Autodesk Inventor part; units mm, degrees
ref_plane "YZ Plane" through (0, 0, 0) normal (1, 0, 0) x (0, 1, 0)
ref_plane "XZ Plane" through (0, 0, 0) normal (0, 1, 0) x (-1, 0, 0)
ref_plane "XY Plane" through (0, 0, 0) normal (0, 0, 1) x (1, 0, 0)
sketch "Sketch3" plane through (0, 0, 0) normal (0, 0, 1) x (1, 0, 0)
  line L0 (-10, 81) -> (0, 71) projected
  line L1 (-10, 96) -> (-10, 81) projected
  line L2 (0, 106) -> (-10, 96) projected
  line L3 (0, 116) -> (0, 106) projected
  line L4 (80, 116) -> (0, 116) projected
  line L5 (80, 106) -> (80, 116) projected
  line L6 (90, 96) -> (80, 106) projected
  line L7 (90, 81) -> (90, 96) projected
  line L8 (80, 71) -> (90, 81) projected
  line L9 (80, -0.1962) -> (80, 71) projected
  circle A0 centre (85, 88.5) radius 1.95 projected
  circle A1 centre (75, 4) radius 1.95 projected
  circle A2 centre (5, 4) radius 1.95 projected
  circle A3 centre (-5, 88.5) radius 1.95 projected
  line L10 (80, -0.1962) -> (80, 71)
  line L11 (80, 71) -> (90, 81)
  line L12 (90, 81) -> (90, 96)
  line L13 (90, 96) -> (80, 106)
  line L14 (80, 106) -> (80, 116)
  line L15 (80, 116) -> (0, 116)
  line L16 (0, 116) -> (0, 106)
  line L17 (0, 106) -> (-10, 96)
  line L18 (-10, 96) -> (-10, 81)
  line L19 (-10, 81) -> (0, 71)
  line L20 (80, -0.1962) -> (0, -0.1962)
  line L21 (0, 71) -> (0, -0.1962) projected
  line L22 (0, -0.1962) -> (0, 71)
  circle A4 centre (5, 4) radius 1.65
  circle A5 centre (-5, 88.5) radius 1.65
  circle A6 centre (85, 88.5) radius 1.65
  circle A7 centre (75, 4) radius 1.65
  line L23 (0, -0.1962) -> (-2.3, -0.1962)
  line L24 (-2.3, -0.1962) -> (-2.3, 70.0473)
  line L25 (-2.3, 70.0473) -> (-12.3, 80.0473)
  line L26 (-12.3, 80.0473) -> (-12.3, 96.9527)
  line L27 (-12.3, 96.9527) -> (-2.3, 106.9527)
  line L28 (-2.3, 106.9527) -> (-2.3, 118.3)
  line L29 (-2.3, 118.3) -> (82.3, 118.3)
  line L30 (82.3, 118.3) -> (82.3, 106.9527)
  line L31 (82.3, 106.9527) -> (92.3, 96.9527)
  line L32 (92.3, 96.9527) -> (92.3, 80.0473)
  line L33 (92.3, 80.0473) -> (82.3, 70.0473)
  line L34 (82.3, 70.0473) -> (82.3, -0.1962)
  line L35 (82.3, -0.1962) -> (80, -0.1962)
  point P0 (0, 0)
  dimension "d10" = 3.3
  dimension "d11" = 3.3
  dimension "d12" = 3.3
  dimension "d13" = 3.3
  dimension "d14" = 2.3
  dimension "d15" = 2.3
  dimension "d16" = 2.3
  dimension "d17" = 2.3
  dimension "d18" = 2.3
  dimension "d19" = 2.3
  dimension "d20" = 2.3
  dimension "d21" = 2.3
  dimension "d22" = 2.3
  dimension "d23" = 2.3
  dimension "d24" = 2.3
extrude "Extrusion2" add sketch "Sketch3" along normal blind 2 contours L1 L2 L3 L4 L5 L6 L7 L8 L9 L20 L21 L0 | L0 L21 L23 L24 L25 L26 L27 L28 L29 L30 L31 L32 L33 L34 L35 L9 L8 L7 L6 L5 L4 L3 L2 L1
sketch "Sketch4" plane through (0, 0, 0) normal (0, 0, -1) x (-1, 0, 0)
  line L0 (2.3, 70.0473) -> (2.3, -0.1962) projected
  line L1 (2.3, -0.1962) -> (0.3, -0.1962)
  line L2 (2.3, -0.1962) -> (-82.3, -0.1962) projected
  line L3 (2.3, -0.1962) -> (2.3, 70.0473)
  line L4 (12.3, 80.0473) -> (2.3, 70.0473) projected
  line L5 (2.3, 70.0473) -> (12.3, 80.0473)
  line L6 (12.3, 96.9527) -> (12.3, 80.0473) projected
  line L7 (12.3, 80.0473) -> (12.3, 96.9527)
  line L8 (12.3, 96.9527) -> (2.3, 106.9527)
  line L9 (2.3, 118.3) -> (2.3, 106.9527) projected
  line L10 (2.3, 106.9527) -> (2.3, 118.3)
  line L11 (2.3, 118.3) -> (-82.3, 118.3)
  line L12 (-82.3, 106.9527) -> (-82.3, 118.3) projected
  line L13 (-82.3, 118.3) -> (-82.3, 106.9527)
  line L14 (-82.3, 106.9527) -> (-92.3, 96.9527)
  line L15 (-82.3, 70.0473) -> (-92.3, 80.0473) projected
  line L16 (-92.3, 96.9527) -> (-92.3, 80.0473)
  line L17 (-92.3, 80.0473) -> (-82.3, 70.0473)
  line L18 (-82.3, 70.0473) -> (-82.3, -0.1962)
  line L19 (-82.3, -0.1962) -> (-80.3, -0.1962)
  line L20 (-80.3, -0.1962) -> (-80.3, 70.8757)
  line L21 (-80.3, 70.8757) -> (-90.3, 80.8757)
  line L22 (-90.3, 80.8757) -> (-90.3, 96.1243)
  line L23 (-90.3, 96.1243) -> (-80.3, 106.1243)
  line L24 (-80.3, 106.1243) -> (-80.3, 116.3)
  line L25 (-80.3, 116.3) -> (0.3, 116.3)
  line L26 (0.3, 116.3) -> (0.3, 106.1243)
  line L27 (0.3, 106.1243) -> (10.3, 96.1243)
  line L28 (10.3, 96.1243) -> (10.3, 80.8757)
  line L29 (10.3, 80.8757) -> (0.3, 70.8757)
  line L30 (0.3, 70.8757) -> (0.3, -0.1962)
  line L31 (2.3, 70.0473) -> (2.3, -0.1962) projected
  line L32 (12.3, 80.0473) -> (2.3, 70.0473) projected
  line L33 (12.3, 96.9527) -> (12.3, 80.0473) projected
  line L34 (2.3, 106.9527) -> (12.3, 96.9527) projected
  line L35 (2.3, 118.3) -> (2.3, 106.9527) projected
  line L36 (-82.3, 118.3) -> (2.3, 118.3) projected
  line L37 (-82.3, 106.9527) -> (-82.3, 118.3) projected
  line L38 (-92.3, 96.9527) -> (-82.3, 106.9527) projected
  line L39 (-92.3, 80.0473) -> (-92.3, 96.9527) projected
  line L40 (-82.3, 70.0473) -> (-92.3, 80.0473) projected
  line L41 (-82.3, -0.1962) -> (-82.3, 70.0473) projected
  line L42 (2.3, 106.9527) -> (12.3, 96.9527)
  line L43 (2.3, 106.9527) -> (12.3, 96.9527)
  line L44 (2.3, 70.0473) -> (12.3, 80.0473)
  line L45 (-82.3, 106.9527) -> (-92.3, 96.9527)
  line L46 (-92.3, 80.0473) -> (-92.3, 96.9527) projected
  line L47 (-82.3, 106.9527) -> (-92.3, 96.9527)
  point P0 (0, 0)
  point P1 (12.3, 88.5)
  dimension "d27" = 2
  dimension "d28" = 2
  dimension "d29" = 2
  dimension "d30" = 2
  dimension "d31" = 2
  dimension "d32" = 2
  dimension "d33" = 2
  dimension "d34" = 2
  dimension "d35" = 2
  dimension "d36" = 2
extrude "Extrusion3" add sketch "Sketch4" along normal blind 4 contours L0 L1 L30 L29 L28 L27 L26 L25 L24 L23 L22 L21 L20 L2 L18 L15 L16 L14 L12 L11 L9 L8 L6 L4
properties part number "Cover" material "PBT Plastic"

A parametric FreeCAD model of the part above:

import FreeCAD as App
import Part
import Sketcher
from FreeCAD import Vector
Q = App.Units.Quantity


def add_polygon(sketch, points):
    """Adds a closed chain of lines whose ends are joined by coincident constraints."""
    first, n = sketch.GeometryCount, len(points)
    for a, b in zip(points, points[1:] + points[:1]):
        sketch.addGeometry(Part.LineSegment(App.Vector(*a, 0), App.Vector(*b, 0)), False)
    for i in range(n):
        sketch.addConstraint(Sketcher.Constraint("Coincident", first + i, 2, first + (i + 1) % n, 1))

doc = App.newDocument("Part")
body = doc.addObject("PartDesign::Body", "Body")

# Sketch on XY plane
sketch1 = body.newObject("Sketcher::SketchObject", "Sketch")
sketch1.AttachmentSupport = (doc.getObject("XY_Plane"), [""])
sketch1.MapMode = "FlatFace"
add_polygon(sketch1, [(82.3, -0.2), (82.3, 70), (92.3, 80), (92.3, 97), (82.3, 107), (82.3, 118.3), (-2.3, 118.3), (-2.3, 107), (-12.3, 97), (-12.3, 80), (-2.3, 70), (-2.3, -0.2)])  # lines 0-11
sketch1.addGeometry(Part.Circle(Vector(5, 4, 0), Vector(0, 0, 1), 1.9), False)  # 12
sketch1.addGeometry(Part.Circle(Vector(75, 4, 0), Vector(0, 0, 1), 1.9), False)  # 13
sketch1.addGeometry(Part.Circle(Vector(-5, 88.5, 0), Vector(0, 0, 1), 1.9), False)  # 14
sketch1.addGeometry(Part.Circle(Vector(85, 88.5, 0), Vector(0, 0, 1), 1.9), False)  # 15
sketch1.addConstraint(Sketcher.Constraint("Vertical", 0))
sketch1.addConstraint(Sketcher.Constraint("Vertical", 2))
sketch1.addConstraint(Sketcher.Constraint("Vertical", 4))
sketch1.addConstraint(Sketcher.Constraint("Horizontal", 5))
sketch1.addConstraint(Sketcher.Constraint("Vertical", 6))
sketch1.addConstraint(Sketcher.Constraint("Vertical", 8))
sketch1.addConstraint(Sketcher.Constraint("Vertical", 10))
sketch1.addConstraint(Sketcher.Constraint("Horizontal", 11))
sketch1.addConstraint(Sketcher.Constraint("Equal", 12, 13))
sketch1.addConstraint(Sketcher.Constraint("Equal", 13, 14))
sketch1.addConstraint(Sketcher.Constraint("Equal", 14, 15))
sketch1.addConstraint(Sketcher.Constraint("Perpendicular", 1, 3))
sketch1.addConstraint(Sketcher.Constraint("Perpendicular", 3, 7))
sketch1.addConstraint(Sketcher.Constraint("Perpendicular", 7, 9))
sketch1.addConstraint(Sketcher.Constraint("Horizontal", 12, 3, 13, 3))
sketch1.addConstraint(Sketcher.Constraint("Horizontal", 14, 3, 15, 3))
sketch1.addConstraint(Sketcher.Constraint("Horizontal", 3, 2, 6, 2))
sketch1.addConstraint(Sketcher.Constraint("Horizontal", 2, 2, 7, 2))
sketch1.addConstraint(Sketcher.Constraint("Horizontal", 1, 2, 8, 2))
sketch1.addConstraint(Sketcher.Constraint("Horizontal", 0, 2, 9, 2))
sketch1.addConstraint(Sketcher.Constraint("Vertical", 0, 2, 3, 2))
sketch1.addConstraint(Sketcher.Constraint("Vertical", 6, 2, 9, 2))
sketch1.addConstraint(Sketcher.Constraint("Diameter", 12, Q("3.9 mm")))
sketch1.addConstraint(Sketcher.Constraint("DistanceX", 5, 2, -1, 1, Q("2.3 mm")))
sketch1.addConstraint(Sketcher.Constraint("DistanceX", 5, 2, 5, 1, Q("84.6 mm")))
sketch1.addConstraint(Sketcher.Constraint("DistanceX", -1, 1, 12, 3, Q("5 mm")))
sketch1.addConstraint(Sketcher.Constraint("DistanceY", -1, 1, 12, 3, Q("4 mm")))
sketch1.addConstraint(Sketcher.Constraint("DistanceX", -1, 1, 13, 3, Q("75 mm")))
sketch1.addConstraint(Sketcher.Constraint("DistanceX", 14, 3, -1, 1, Q("5 mm")))
sketch1.addConstraint(Sketcher.Constraint("DistanceX", -1, 1, 15, 3, Q("85 mm")))
sketch1.addConstraint(Sketcher.Constraint("DistanceX", 0, 2, 1, 2, Q("10 mm")))
sketch1.addConstraint(Sketcher.Constraint("DistanceY", -1, 1, 14, 3, Q("88.5 mm")))
sketch1.addConstraint(Sketcher.Constraint("DistanceY", -1, 1, 4, 2, Q("118.3 mm")))
sketch1.addConstraint(Sketcher.Constraint("DistanceY", 0, 1, 0, 2, Q("70.2435 mm")))
sketch1.addConstraint(Sketcher.Constraint("DistanceY", 2, 1, 2, 2, Q("16.9054 mm")))
sketch1.addConstraint(Sketcher.Constraint("DistanceY", 4, 1, 4, 2, Q("11.3473 mm")))
pad1 = body.newObject("PartDesign::Pad", "Pad")
pad1.Profile = sketch1
pad1.Length = 2

# Sketch on XY plane
sketch2 = body.newObject("Sketcher::SketchObject", "Sketch001")
sketch2.AttachmentSupport = (doc.getObject("XY_Plane"), [""])
sketch2.MapMode = "FlatFace"
add_polygon(sketch2, [(-2.3, -0.2), (-2.3, 70), (-12.3, 80), (-12.3, 97), (-2.3, 107), (-2.3, 118.3), (82.3, 118.3), (82.3, 107), (92.3, 97), (92.3, 80), (82.3, 70), (82.3, -0.2), (80.3, -0.2), (80.3, 70.9), (90.3, 80.9), (90.3, 96.1), (80.3, 106.1), (80.3, 116.3), (-0.3, 116.3), (-0.3, 106.1), (-10.3, 96.1), (-10.3, 80.9), (-0.3, 70.9), (-0.3, -0.2)])  # lines 0-23
sketch2.addConstraint(Sketcher.Constraint("Vertical", 0))
sketch2.addConstraint(Sketcher.Constraint("Vertical", 2))
sketch2.addConstraint(Sketcher.Constraint("Vertical", 4))
sketch2.addConstraint(Sketcher.Constraint("Horizontal", 5))
sketch2.addConstraint(Sketcher.Constraint("Vertical", 6))
sketch2.addConstraint(Sketcher.Constraint("Vertical", 8))
sketch2.addConstraint(Sketcher.Constraint("Vertical", 10))
sketch2.addConstraint(Sketcher.Constraint("Horizontal", 11))
sketch2.addConstraint(Sketcher.Constraint("Vertical", 12))
sketch2.addConstraint(Sketcher.Constraint("Vertical", 14))
sketch2.addConstraint(Sketcher.Constraint("Vertical", 16))
sketch2.addConstraint(Sketcher.Constraint("Horizontal", 17))
sketch2.addConstraint(Sketcher.Constraint("Vertical", 18))
sketch2.addConstraint(Sketcher.Constraint("Vertical", 20))
sketch2.addConstraint(Sketcher.Constraint("Vertical", 22))
sketch2.addConstraint(Sketcher.Constraint("Horizontal", 23))
sketch2.addConstraint(Sketcher.Constraint("Perpendicular", 1, 3))
sketch2.addConstraint(Sketcher.Constraint("Perpendicular", 3, 7))
sketch2.addConstraint(Sketcher.Constraint("Perpendicular", 7, 9))
sketch2.addConstraint(Sketcher.Constraint("Parallel", 9, 13))
sketch2.addConstraint(Sketcher.Constraint("Perpendicular", 13, 15))
sketch2.addConstraint(Sketcher.Constraint("Perpendicular", 15, 19))
sketch2.addConstraint(Sketcher.Constraint("Perpendicular", 19, 21))
sketch2.addConstraint(Sketcher.Constraint("Horizontal", 3, 2, 6, 2))
sketch2.addConstraint(Sketcher.Constraint("Horizontal", 2, 2, 7, 2))
sketch2.addConstraint(Sketcher.Constraint("Horizontal", 1, 2, 8, 2))
sketch2.addConstraint(Sketcher.Constraint("Horizontal", 0, 2, 9, 2))
sketch2.addConstraint(Sketcher.Constraint("Horizontal", 15, 2, 18, 2))
sketch2.addConstraint(Sketcher.Constraint("Horizontal", 14, 2, 19, 2))
sketch2.addConstraint(Sketcher.Constraint("Horizontal", 13, 2, 20, 2))
sketch2.addConstraint(Sketcher.Constraint("Horizontal", 12, 2, 21, 2))
sketch2.addConstraint(Sketcher.Constraint("Horizontal", 11, 2, 22, 2))
sketch2.addConstraint(Sketcher.Constraint("Vertical", 0, 2, 3, 2))
sketch2.addConstraint(Sketcher.Constraint("Vertical", 6, 2, 9, 2))
sketch2.addConstraint(Sketcher.Constraint("Vertical", 12, 2, 15, 2))
sketch2.addConstraint(Sketcher.Constraint("Equal", 11, 23))
sketch2.addConstraint(Sketcher.Constraint("Equal", 9, 13))
sketch2.addConstraint(Sketcher.Constraint("DistanceX", 11, 2, 11, 1, Q("2 mm")))
sketch2.addConstraint(Sketcher.Constraint("DistanceY", 16, 2, 5, 2, Q("2 mm")))
sketch2.addConstraint(Sketcher.Constraint("DistanceX", 5, 1, 5, 2, Q("84.6 mm")))
sketch2.addConstraint(Sketcher.Constraint("DistanceX", 1, 2, 0, 2, Q("10 mm")))
sketch2.addConstraint(Sketcher.Constraint("DistanceX", 0, 2, -1, 1, Q("2.3 mm")))
sketch2.addConstraint(Sketcher.Constraint("DistanceY", -1, 1, 4, 2, Q("118.3 mm")))
sketch2.addConstraint(Sketcher.Constraint("DistanceY", 12, 1, 12, 2, Q("71.072 mm")))
sketch2.addConstraint(Sketcher.Constraint("DistanceY", 0, 1, 0, 2, Q("70.2435 mm")))
sketch2.addConstraint(Sketcher.Constraint("DistanceY", 2, 1, 2, 2, Q("16.9054 mm")))
sketch2.addConstraint(Sketcher.Constraint("DistanceY", 4, 1, 4, 2, Q("11.3473 mm")))
sketch2.addConstraint(Sketcher.Constraint("DistanceY", 14, 1, 14, 2, Q("15.2486 mm")))
pad2 = body.newObject("PartDesign::Pad", "Pad001")
pad2.Profile = sketch2
pad2.Length = 4
pad2.Reversed = True

doc.recompute()
